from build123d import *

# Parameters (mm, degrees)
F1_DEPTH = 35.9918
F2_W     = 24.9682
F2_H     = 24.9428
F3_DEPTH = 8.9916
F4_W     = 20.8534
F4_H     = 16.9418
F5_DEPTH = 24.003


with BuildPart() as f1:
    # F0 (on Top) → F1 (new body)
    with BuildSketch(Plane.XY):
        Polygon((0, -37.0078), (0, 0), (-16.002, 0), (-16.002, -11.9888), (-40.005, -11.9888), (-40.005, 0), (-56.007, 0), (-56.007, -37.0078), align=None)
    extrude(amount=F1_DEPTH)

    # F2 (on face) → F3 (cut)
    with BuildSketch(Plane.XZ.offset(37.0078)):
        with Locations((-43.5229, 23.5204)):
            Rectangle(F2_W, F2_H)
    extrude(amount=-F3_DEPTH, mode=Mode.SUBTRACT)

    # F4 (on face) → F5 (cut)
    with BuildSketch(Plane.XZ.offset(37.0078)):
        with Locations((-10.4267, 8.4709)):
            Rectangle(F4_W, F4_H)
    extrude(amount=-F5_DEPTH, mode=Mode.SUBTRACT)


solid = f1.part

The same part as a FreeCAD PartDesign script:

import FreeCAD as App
import Part
import Sketcher

V = App.Vector
Q = App.Units.Quantity


def add_polygon(sketch, points):
    """Adds a closed chain of lines whose ends are joined by coincident constraints."""
    first, n = sketch.GeometryCount, len(points)
    for a, b in zip(points, points[1:] + points[:1]):
        sketch.addGeometry(Part.LineSegment(App.Vector(*a, 0), App.Vector(*b, 0)), False)
    for i in range(n):
        sketch.addConstraint(Sketcher.Constraint("Coincident", first + i, 2, first + (i + 1) % n, 1))

doc = App.newDocument("Part")
params = doc.addObject("Spreadsheet::Sheet", "Params")
for row, (alias, value) in enumerate([
    ("sketch1_width", "0.63 in"),
    ("sketch1_width2", "0.945 in"),
    ("sketch1_height", "1.457 in"),
    ("sketch1_height2", "0.472 in"),
    ("pad1_length", "1.417 in"),
    ("sketch2_width", "0.983 in"),
    ("sketch2_height", "0.982 in"),
    ("pocket1_length", "0.354 in"),
    ("sketch3_width", "0.821 in"),
    ("sketch3_height", "0.667 in"),
    ("pocket2_length", "0.945 in"),
], start=1):
    params.set(f"A{row}", alias)
    params.set(f"B{row}", "=" + value)
    params.setAlias(f"B{row}", alias)

body = doc.addObject("PartDesign::Body", "Body")

# Sketch on XY plane
sketch1 = doc.addObject("Sketcher::SketchObject", "Sketch")
body.addObject(sketch1)
sketch1.AttachmentSupport = (doc.XY_Plane, [""])
sketch1.MapMode = "FlatFace"
add_polygon(sketch1, [(0, -37.0078), (0, 0), (-16.002, 0), (-16.002, -11.9888), (-40.005, -11.9888), (-40.005, 0), (-56.007, 0), (-56.007, -37.0078)])  # lines 0-7
sketch1.addConstraint(Sketcher.Constraint("Vertical", 0))
sketch1.addConstraint(Sketcher.Constraint("Horizontal", 1))
sketch1.addConstraint(Sketcher.Constraint("Vertical", 2))
sketch1.addConstraint(Sketcher.Constraint("Horizontal", 3))
sketch1.addConstraint(Sketcher.Constraint("Vertical", 4))
sketch1.addConstraint(Sketcher.Constraint("Horizontal", 5))
sketch1.addConstraint(Sketcher.Constraint("Vertical", 6))
sketch1.addConstraint(Sketcher.Constraint("Horizontal", 7))
sketch1.addConstraint(Sketcher.Constraint("Coincident", 0, 2, -1, 1))
sketch1.addConstraint(Sketcher.Constraint("PointOnObject", 4, 2, -1))
sketch1.addConstraint(Sketcher.Constraint("Equal", 1, 5))
sketch1.addConstraint(Sketcher.Constraint("DistanceX", 1, 2, 1, 1, Q("0.63 in")))
sketch1.addConstraint(Sketcher.Constraint("DistanceX", 3, 2, 3, 1, Q("0.945 in")))
sketch1.addConstraint(Sketcher.Constraint("DistanceY", 0, 1, 0, 2, Q("1.457 in")))
sketch1.addConstraint(Sketcher.Constraint("DistanceY", 2, 2, 2, 1, Q("0.472 in")))
sketch1.setExpression("Constraints[19]", "Params.sketch1_width")
sketch1.setExpression("Constraints[20]", "Params.sketch1_width2")
sketch1.setExpression("Constraints[21]", "Params.sketch1_height")
sketch1.setExpression("Constraints[22]", "Params.sketch1_height2")
pad1 = doc.addObject("PartDesign::Pad", "Pad")
body.addObject(pad1)
pad1.Profile = sketch1
pad1.setExpression("Length", "Params.pad1_length")

# Sketch on XZ plane
sketch2 = doc.addObject("Sketcher::SketchObject", "Sketch001")
body.addObject(sketch2)
sketch2.AttachmentSupport = (doc.XZ_Plane, [""])
sketch2.MapMode = "FlatFace"
sketch2.AttachmentOffset = App.Placement(V(0, 0, 1.457 * 25.4), App.Rotation())
add_polygon(sketch2, [(-56.007, 35.9918), (-56.007, 11.049), (-31.0388, 11.049), (-31.0388, 35.9918)])  # lines 0-3
sketch2.addConstraint(Sketcher.Constraint("Vertical", 0))
sketch2.addConstraint(Sketcher.Constraint("Horizontal", 1))
sketch2.addConstraint(Sketcher.Constraint("Vertical", 2))
sketch2.addConstraint(Sketcher.Constraint("Horizontal", 3))
sketch2.addConstraint(Sketcher.Constraint("DistanceX", 1, 1, 1, 2, Q("0.983 in")))
sketch2.addConstraint(Sketcher.Constraint("DistanceY", 0, 2, 0, 1, Q("0.982 in")))
sketch2.addConstraint(Sketcher.Constraint("DistanceX", 0, 2, -1, 1, Q("2.205 in")))
sketch2.addConstraint(Sketcher.Constraint("DistanceY", -1, 1, 0, 2, Q("0.435 in")))
sketch2.setExpression("Constraints[8]", "Params.sketch2_width")
sketch2.setExpression("Constraints[9]", "Params.sketch2_height")
pocket1 = doc.addObject("PartDesign::Pocket", "Pocket")
body.addObject(pocket1)
pocket1.Profile = sketch2
pocket1.setExpression("Length", "Params.pocket1_length")

# Sketch on XZ plane
sketch3 = doc.addObject("Sketcher::SketchObject", "Sketch002")
body.addObject(sketch3)
sketch3.AttachmentSupport = (doc.XZ_Plane, [""])
sketch3.MapMode = "FlatFace"
sketch3.AttachmentOffset = App.Placement(V(0, 0, 1.457 * 25.4), App.Rotation())
add_polygon(sketch3, [(-20.8534, 16.9418), (-20.8534, 0), (0, 0), (0, 16.9418)])  # lines 0-3
sketch3.addConstraint(Sketcher.Constraint("Vertical", 0))
sketch3.addConstraint(Sketcher.Constraint("Horizontal", 1))
sketch3.addConstraint(Sketcher.Constraint("Vertical", 2))
sketch3.addConstraint(Sketcher.Constraint("Horizontal", 3))
sketch3.addConstraint(Sketcher.Constraint("Coincident", 1, 2, -1, 1))
sketch3.addConstraint(Sketcher.Constraint("DistanceX", 1, 1, 1, 2, Q("0.821 in")))
sketch3.addConstraint(Sketcher.Constraint("DistanceY", 0, 2, 0, 1, Q("0.667 in")))
sketch3.setExpression("Constraints[9]", "Params.sketch3_width")
sketch3.setExpression("Constraints[10]", "Params.sketch3_height")
pocket2 = doc.addObject("PartDesign::Pocket", "Pocket001")
body.addObject(pocket2)
pocket2.Profile = sketch3
pocket2.setExpression("Length", "Params.pocket2_length")

doc.recompute()
